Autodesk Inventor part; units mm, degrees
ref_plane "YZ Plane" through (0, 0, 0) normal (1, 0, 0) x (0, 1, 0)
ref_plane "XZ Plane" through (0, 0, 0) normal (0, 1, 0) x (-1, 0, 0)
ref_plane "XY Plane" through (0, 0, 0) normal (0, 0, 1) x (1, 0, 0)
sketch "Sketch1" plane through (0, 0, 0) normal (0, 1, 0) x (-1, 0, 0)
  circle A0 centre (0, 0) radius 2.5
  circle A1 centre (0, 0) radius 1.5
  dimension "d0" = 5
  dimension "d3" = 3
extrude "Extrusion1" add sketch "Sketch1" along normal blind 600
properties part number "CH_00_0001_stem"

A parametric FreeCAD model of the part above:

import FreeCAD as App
import Part
import Sketcher
from FreeCAD import Vector
Q = App.Units.Quantity

doc = App.newDocument("Part")
body = doc.addObject("PartDesign::Body", "Body")

# Sketch on XZ plane
sketch1 = body.newObject("Sketcher::SketchObject", "Sketch")
sketch1.AttachmentSupport = (doc.getObject("XZ_Plane"), [""])
sketch1.MapMode = "FlatFace"
sketch1.addGeometry([
    Part.Circle(Vector(0, 0, 0), Vector(0, 0, 1), 2.5),
    Part.Circle(Vector(0, 0, 0), Vector(0, 0, 1), 1.5),
], False)
sketch1.addConstraint([
    Sketcher.Constraint("Coincident", 0, 3, -1, 1),
    Sketcher.Constraint("Coincident", 1, 3, -1, 1),
    Sketcher.Constraint("Diameter", 0, Q("5 mm")),
    Sketcher.Constraint("Diameter", 1, Q("3 mm")),
])
pad1 = body.newObject("PartDesign::Pad", "Pad")
pad1.Profile = sketch1
pad1.Length = 600
pad1.Reversed = True

doc.recompute()
